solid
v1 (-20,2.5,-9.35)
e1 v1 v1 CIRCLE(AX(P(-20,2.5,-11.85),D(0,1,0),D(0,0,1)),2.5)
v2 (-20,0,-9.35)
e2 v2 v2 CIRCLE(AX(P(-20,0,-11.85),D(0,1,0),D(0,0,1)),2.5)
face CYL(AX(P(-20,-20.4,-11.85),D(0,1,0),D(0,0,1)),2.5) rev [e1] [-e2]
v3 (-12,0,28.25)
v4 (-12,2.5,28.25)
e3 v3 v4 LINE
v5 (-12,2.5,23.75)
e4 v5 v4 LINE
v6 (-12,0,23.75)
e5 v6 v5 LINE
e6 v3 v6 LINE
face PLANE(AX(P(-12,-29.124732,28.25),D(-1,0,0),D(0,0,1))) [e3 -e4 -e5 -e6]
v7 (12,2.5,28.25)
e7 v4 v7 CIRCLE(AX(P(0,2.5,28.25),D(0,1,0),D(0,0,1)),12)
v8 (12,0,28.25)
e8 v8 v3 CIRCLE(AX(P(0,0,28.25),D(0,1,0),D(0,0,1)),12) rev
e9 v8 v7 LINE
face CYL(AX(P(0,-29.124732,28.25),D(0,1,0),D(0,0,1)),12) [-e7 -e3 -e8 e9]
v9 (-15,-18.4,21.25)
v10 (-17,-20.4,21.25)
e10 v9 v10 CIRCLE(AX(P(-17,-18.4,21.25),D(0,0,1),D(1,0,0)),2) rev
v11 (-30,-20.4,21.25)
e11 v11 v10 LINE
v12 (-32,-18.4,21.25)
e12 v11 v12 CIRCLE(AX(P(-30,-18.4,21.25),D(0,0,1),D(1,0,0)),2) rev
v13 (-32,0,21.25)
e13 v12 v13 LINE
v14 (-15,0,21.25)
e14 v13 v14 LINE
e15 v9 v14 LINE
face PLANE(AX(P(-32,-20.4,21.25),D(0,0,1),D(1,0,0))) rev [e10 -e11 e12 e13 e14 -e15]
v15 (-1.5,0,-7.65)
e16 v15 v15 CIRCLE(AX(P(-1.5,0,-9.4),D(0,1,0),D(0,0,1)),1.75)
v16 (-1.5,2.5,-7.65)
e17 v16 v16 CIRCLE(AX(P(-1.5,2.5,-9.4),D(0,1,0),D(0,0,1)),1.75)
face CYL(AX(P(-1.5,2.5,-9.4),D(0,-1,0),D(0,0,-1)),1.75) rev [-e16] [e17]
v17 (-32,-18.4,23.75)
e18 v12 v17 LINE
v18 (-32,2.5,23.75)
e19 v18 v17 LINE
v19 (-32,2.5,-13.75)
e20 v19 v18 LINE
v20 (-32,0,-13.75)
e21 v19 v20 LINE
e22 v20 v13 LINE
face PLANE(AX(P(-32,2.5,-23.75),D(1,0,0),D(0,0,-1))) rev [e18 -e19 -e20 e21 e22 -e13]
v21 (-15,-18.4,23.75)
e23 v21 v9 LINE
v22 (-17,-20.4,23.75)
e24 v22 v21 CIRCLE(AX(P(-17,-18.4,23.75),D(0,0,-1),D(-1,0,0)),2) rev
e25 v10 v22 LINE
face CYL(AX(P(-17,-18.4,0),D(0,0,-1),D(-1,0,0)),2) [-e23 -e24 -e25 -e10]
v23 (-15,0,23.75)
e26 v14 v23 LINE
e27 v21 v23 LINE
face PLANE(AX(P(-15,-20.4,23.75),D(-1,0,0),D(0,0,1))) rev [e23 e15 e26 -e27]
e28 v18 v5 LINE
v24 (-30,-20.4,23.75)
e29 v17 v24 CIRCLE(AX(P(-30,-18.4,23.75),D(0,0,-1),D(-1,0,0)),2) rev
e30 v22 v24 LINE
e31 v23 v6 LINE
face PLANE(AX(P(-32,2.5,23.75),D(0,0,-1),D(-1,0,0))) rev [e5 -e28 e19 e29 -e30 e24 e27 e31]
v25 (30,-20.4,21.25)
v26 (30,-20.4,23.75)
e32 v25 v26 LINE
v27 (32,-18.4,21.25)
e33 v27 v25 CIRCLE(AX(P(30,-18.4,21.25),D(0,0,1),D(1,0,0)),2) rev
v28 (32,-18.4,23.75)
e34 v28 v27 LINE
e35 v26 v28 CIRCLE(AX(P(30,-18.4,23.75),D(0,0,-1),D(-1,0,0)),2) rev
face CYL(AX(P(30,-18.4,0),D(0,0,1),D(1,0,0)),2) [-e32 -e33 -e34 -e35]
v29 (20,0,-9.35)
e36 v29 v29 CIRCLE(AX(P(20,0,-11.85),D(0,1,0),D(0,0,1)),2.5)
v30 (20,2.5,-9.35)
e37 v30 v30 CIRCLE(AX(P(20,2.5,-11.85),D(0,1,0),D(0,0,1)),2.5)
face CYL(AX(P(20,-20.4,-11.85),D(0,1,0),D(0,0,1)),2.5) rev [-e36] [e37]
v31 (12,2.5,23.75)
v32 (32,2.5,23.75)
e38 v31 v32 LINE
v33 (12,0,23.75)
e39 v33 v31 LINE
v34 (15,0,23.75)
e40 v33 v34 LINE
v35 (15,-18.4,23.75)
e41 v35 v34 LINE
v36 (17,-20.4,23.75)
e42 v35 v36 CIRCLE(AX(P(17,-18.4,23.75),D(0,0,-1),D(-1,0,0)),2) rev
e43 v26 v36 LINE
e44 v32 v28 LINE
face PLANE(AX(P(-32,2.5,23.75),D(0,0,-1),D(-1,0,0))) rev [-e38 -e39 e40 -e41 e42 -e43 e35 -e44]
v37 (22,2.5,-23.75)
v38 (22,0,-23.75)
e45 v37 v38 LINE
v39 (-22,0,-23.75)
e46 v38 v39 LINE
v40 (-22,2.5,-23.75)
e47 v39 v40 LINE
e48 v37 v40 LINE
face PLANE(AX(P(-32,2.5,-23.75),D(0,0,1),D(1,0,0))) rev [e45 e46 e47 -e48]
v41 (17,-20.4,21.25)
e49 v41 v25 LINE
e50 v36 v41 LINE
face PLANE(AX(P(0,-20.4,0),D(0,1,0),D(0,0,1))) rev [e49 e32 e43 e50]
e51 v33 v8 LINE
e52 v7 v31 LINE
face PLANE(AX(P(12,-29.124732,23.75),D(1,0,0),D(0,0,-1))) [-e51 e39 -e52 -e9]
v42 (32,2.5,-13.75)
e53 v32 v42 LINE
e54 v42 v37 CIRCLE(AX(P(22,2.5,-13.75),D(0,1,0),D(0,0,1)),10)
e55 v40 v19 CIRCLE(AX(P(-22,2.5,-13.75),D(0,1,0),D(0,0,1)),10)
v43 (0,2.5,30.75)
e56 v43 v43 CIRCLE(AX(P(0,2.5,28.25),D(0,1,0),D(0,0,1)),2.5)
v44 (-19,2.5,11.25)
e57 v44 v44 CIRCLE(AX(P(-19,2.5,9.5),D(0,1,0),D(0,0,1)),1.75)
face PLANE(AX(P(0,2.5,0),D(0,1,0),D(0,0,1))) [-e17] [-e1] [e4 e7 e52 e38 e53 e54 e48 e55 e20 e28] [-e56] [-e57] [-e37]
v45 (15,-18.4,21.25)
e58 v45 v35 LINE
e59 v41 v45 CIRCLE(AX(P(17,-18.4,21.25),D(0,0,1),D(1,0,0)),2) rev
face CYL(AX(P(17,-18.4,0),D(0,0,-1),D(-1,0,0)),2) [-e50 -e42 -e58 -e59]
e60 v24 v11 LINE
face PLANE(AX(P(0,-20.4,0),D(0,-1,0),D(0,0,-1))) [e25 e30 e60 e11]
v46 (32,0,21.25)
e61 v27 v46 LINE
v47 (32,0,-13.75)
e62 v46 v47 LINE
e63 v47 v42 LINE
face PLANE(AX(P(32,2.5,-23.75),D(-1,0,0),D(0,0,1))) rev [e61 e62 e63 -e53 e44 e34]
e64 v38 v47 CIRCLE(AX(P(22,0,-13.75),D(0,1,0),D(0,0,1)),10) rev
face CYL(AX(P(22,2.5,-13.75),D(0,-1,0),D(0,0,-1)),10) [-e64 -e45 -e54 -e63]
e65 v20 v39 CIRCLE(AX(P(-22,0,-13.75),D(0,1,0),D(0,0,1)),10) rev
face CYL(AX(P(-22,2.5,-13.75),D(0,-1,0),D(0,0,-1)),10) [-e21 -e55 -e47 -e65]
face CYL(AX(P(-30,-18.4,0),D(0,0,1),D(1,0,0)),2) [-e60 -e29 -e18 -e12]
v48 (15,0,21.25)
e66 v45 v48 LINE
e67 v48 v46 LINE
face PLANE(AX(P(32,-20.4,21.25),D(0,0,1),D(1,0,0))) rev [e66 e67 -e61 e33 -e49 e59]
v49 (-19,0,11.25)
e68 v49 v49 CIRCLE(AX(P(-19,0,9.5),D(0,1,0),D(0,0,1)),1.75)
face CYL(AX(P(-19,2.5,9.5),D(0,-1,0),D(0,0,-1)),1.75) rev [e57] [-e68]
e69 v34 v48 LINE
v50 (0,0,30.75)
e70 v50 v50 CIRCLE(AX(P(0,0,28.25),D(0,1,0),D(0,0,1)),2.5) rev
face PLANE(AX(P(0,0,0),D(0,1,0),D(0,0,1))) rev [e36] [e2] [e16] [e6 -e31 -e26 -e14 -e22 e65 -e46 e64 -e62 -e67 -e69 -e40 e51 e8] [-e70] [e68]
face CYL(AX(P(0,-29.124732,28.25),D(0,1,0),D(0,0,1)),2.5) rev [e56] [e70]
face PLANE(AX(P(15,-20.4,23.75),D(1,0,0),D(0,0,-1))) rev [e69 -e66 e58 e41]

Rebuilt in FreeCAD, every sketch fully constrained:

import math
import FreeCAD as App
import Part
import Sketcher

V = App.Vector
Q = App.Units.Quantity


def edges_at(feature, points):
    """Names of the edges that pass closest to the given points."""
    edges = feature.Shape.Edges
    near = lambda p: min(range(len(edges)), key=lambda i: edges[i].distToShape(Part.Vertex(*p))[0])
    return sorted({f"Edge{near(p) + 1}" for p in points})

doc = App.newDocument("Part")
params = doc.addObject("Spreadsheet::Sheet", "Params")
for row, (alias, value) in enumerate([
    ("sketch1_diameter", "3.5 mm"),
    ("sketch1_width", "64 mm"),
    ("sketch1_height", "47.5 mm"),
    ("pad1_length", "2.5 mm"),
    ("fillet_radius", "10 mm"),
    ("sketch2_diameter", "5 mm"),
    ("sketch2_radius", "12 mm"),
    ("sketch2_height", "4.5 mm"),
    ("pad2_length", "2.5 mm"),
    ("sketch3_width", "17 mm"),
    ("sketch3_height", "2.5 mm"),
    ("pad3_length", "20.4 mm"),
    ("fillet2_radius", "2 mm"),
    ("sketch4_diameter", "5 mm"),
], start=1):
    params.set(f"A{row}", alias)
    params.set(f"B{row}", "=" + value)
    params.setAlias(f"B{row}", alias)

body = doc.addObject("PartDesign::Body", "Body")

# Sketch on XZ plane
sketch1 = body.newObject("Sketcher::SketchObject", "Sketch")
sketch1.AttachmentSupport = (doc.getObject("XZ_Plane"), [""])
sketch1.MapMode = "FlatFace"
sketch1.addGeometry([
    Part.LineSegment(V(-32, -23.8, 0), V(-32, 23.8, 0)),  # 0
    Part.LineSegment(V(-32, 23.8, 0), V(32, 23.8, 0)),  # 1
    Part.LineSegment(V(32, 23.8, 0), V(32, -23.8, 0)),  # 2
    Part.LineSegment(V(32, -23.8, 0), V(-32, -23.8, 0)),  # 3
    Part.Circle(V(-19, 9.5, 0), V(0, 0, 1), 1.8),  # 4
    Part.Circle(V(-1.5, -9.4, 0), V(0, 0, 1), 1.8),  # 5
], False)
sketch1.addConstraint([
    Sketcher.Constraint("Coincident", 0, 2, 1, 1),
    Sketcher.Constraint("Coincident", 1, 2, 2, 1),
    Sketcher.Constraint("Coincident", 2, 2, 3, 1),
    Sketcher.Constraint("Coincident", 3, 2, 0, 1),
    Sketcher.Constraint("Vertical", 0),
    Sketcher.Constraint("Horizontal", 1),
    Sketcher.Constraint("Vertical", 2),
    Sketcher.Constraint("Horizontal", 3),
    Sketcher.Constraint("Equal", 4, 5),
    Sketcher.Constraint("Symmetric", 0, 2, 2, 2, -1, 1),
    Sketcher.Constraint("Diameter", 4, Q("3.5 mm")),
    Sketcher.Constraint("DistanceX", 1, 1, 1, 2, Q("64 mm")),
    Sketcher.Constraint("DistanceY", 0, 1, 0, 2, Q("47.5 mm")),
    Sketcher.Constraint("DistanceX", 4, 3, -1, 1, Q("19 mm")),
    Sketcher.Constraint("DistanceY", -1, 1, 4, 3, Q("9.5 mm")),
    Sketcher.Constraint("DistanceX", 5, 3, -1, 1, Q("1.5 mm")),
    Sketcher.Constraint("DistanceY", 5, 3, -1, 1, Q("9.4 mm")),
])
sketch1.setExpression("Constraints[10]", "Params.sketch1_diameter")
sketch1.setExpression("Constraints[11]", "Params.sketch1_width")
sketch1.setExpression("Constraints[12]", "Params.sketch1_height")
pad1 = body.newObject("PartDesign::Pad", "Pad")
pad1.Profile = sketch1
pad1.setExpression("Length", "Params.pad1_length")
pad1.Reversed = True
doc.recompute()

fillet = body.newObject("PartDesign::Fillet", "Fillet")
fillet.Base = (pad1, edges_at(pad1, [(-32, 1.25, -23.75), (32, 1.25, -23.75)]))
fillet.setExpression("Radius", "Params.fillet_radius")

# Sketch on XZ plane
sketch2 = body.newObject("Sketcher::SketchObject", "Sketch001")
sketch2.AttachmentSupport = (doc.getObject("XZ_Plane"), [""])
sketch2.MapMode = "FlatFace"
sketch2.AttachmentOffset = App.Placement(V(0, 0, -2.5), App.Rotation())
sketch2.addGeometry([
    Part.LineSegment(V(-12, 23.8, 0), V(-12, 28.2, 0)),  # 0
    Part.ArcOfCircle(Part.Circle(V(0, 28.2, 0), V(0, 0, 1), 12), math.radians(0), math.radians(180)),  # 1
    Part.LineSegment(V(12, 28.2, 0), V(12, 23.8, 0)),  # 2
    Part.LineSegment(V(12, 23.8, 0), V(-12, 23.8, 0)),  # 3
    Part.Circle(V(0, 28.2, 0), V(0, 0, 1), 2.5),  # 4
], False)
sketch2.addConstraint([
    Sketcher.Constraint("Tangent", 0, 2, 1, 2),
    Sketcher.Constraint("Tangent", 1, 1, 2, 1),
    Sketcher.Constraint("Coincident", 2, 2, 3, 1),
    Sketcher.Constraint("Coincident", 3, 2, 0, 1),
    Sketcher.Constraint("Vertical", 0),
    Sketcher.Constraint("Vertical", 2),
    Sketcher.Constraint("Horizontal", 3),
    Sketcher.Constraint("Coincident", 4, 3, 1, 3),
    Sketcher.Constraint("PointOnObject", 1, 3, -2),
    Sketcher.Constraint("Diameter", 4, Q("5 mm")),
    Sketcher.Constraint("Radius", 1, Q("12 mm")),
    Sketcher.Constraint("DistanceY", 0, 1, 0, 2, Q("4.5 mm")),
    Sketcher.Constraint("DistanceY", -1, 1, 1, 3, Q("28.25 mm")),
])
sketch2.setExpression("Constraints[9]", "Params.sketch2_diameter")
sketch2.setExpression("Constraints[10]", "Params.sketch2_radius")
sketch2.setExpression("Constraints[11]", "Params.sketch2_height")
pad2 = body.newObject("PartDesign::Pad", "Pad001")
pad2.Profile = sketch2
pad2.setExpression("Length", "Params.pad2_length")

# Sketch on XZ plane
sketch3 = body.newObject("Sketcher::SketchObject", "Sketch002")
sketch3.AttachmentSupport = (doc.getObject("XZ_Plane"), [""])
sketch3.MapMode = "FlatFace"
sketch3.addGeometry([
    Part.LineSegment(V(-32, 23.8, 0), V(-32, 21.2, 0)),  # 0
    Part.LineSegment(V(-32, 21.2, 0), V(-15, 21.2, 0)),  # 1
    Part.LineSegment(V(-15, 21.2, 0), V(-15, 23.8, 0)),  # 2
    Part.LineSegment(V(-15, 23.8, 0), V(-32, 23.8, 0)),  # 3
    Part.LineSegment(V(15, 23.8, 0), V(15, 21.2, 0)),  # 4
    Part.LineSegment(V(15, 21.2, 0), V(32, 21.2, 0)),  # 5
    Part.LineSegment(V(32, 21.2, 0), V(32, 23.8, 0)),  # 6
    Part.LineSegment(V(32, 23.8, 0), V(15, 23.8, 0)),  # 7
], False)
sketch3.addConstraint([
    Sketcher.Constraint("Coincident", 0, 2, 1, 1),
    Sketcher.Constraint("Coincident", 1, 2, 2, 1),
    Sketcher.Constraint("Coincident", 2, 2, 3, 1),
    Sketcher.Constraint("Coincident", 3, 2, 0, 1),
    Sketcher.Constraint("Coincident", 4, 2, 5, 1),
    Sketcher.Constraint("Coincident", 5, 2, 6, 1),
    Sketcher.Constraint("Coincident", 6, 2, 7, 1),
    Sketcher.Constraint("Coincident", 7, 2, 4, 1),
    Sketcher.Constraint("Vertical", 0),
    Sketcher.Constraint("Horizontal", 1),
    Sketcher.Constraint("Vertical", 2),
    Sketcher.Constraint("Horizontal", 3),
    Sketcher.Constraint("Vertical", 4),
    Sketcher.Constraint("Horizontal", 5),
    Sketcher.Constraint("Vertical", 6),
    Sketcher.Constraint("Horizontal", 7),
    Sketcher.Constraint("Symmetric", 1, 2, 4, 2, -2),
    Sketcher.Constraint("Symmetric", 3, 2, 6, 2, -2),
    Sketcher.Constraint("DistanceX", 1, 1, 1, 2, Q("17 mm")),
    Sketcher.Constraint("DistanceY", 0, 2, 0, 1, Q("2.5 mm")),
    Sketcher.Constraint("DistanceX", 0, 2, -1, 1, Q("32 mm")),
    Sketcher.Constraint("DistanceY", -1, 1, 0, 2, Q("21.25 mm")),
])
sketch3.setExpression("Constraints[18]", "Params.sketch3_width")
sketch3.setExpression("Constraints[19]", "Params.sketch3_height")
pad3 = body.newObject("PartDesign::Pad", "Pad002")
pad3.Profile = sketch3
pad3.setExpression("Length", "Params.pad3_length")
doc.recompute()

fillet2 = body.newObject("PartDesign::Fillet", "Fillet001")
fillet2.Base = (pad3, edges_at(pad3, [
    (-32, -20.4, 22.5),
    (-15, -20.4, 22.5),
    (32, -20.4, 22.5),
    (15, -20.4, 22.5),
]))
fillet2.setExpression("Radius", "Params.fillet2_radius")

# Sketch on XZ plane
sketch4 = body.newObject("Sketcher::SketchObject", "Sketch003")
sketch4.AttachmentSupport = (doc.getObject("XZ_Plane"), [""])
sketch4.MapMode = "FlatFace"
sketch4.AttachmentOffset = App.Placement(V(0, 0, -2.5), App.Rotation())
sketch4.addGeometry([
    Part.Circle(V(-20, -11.8, 0), V(0, 0, 1), 2.5),
    Part.Circle(V(20, -11.8, 0), V(0, 0, 1), 2.5),
], False)
sketch4.addConstraint([
    Sketcher.Constraint("Equal", 0, 1),
    Sketcher.Constraint("Symmetric", 0, 3, 1, 3, -2),
    Sketcher.Constraint("Diameter", 0, Q("5 mm")),
    Sketcher.Constraint("DistanceX", 0, 3, -1, 1, Q("20 mm")),
    Sketcher.Constraint("DistanceY", 0, 3, -1, 1, Q("11.85 mm")),
])
sketch4.setExpression("Constraints[2]", "Params.sketch4_diameter")
pocket1 = body.newObject("PartDesign::Pocket", "Pocket")
pocket1.Profile = sketch4
pocket1.Type = "ThroughAll"
pocket1.Reversed = True

doc.recompute()
